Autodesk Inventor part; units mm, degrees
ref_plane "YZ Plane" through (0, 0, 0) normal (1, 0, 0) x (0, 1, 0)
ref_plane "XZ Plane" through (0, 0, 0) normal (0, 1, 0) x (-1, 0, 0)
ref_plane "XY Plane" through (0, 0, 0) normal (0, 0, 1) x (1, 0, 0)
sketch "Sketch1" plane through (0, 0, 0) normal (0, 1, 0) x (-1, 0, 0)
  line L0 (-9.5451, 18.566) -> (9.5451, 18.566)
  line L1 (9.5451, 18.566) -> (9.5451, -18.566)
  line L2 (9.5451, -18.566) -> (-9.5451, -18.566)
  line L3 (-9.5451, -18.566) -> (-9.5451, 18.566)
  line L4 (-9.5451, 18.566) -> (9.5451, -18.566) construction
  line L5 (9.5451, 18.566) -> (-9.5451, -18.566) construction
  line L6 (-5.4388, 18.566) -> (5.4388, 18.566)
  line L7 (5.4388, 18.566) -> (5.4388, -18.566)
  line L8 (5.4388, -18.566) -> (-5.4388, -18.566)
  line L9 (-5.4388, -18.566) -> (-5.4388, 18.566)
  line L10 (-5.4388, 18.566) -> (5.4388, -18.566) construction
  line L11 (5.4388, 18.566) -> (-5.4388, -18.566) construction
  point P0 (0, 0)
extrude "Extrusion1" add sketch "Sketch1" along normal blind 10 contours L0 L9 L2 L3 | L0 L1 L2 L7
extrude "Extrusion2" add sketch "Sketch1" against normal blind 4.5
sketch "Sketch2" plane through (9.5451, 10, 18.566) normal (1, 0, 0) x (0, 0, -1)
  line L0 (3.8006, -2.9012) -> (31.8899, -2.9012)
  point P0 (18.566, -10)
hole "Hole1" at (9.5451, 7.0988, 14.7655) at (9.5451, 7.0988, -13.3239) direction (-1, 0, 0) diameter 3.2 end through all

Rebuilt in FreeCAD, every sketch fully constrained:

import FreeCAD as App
import Part
import Sketcher


def add_polygon(sketch, points):
    """Adds a closed chain of lines whose ends are joined by coincident constraints."""
    first, n = sketch.GeometryCount, len(points)
    for a, b in zip(points, points[1:] + points[:1]):
        sketch.addGeometry(Part.LineSegment(App.Vector(*a, 0), App.Vector(*b, 0)), False)
    for i in range(n):
        sketch.addConstraint(Sketcher.Constraint("Coincident", first + i, 2, first + (i + 1) % n, 1))

doc = App.newDocument("Part")
body = doc.addObject("PartDesign::Body", "Body")
body.AllowCompound = True

# Sketch on XZ plane
sketch1 = body.newObject("Sketcher::SketchObject", "Sketch")
sketch1.AttachmentSupport = (doc.getObject("XZ_Plane"), [""])
sketch1.MapMode = "FlatFace"
add_polygon(sketch1, [(5.4388, 18.566), (9.5451, 18.566), (9.5451, -18.566), (5.4388, -18.566)])  # lines 0-3
add_polygon(sketch1, [(-9.5451, 18.566), (-5.4388, 18.566), (-5.4388, -18.566), (-9.5451, -18.566)])  # lines 4-7
sketch1.addConstraint([
    Sketcher.Constraint("Horizontal", 0),
    Sketcher.Constraint("Vertical", 1),
    Sketcher.Constraint("Horizontal", 2),
    Sketcher.Constraint("Vertical", 3),
    Sketcher.Constraint("Horizontal", 4),
    Sketcher.Constraint("Vertical", 5),
    Sketcher.Constraint("Horizontal", 6),
    Sketcher.Constraint("Vertical", 7),
    Sketcher.Constraint("Symmetric", 2, 2, 4, 2, -1, 1),
    Sketcher.Constraint("Symmetric", 0, 2, 6, 2, -1, 1),
    Sketcher.Constraint("Horizontal", 3, 2, 4, 2),
    Sketcher.Constraint("DistanceY", 1, 2, 1, 1, 37.132),
    Sketcher.Constraint("DistanceX", 0, 1, 0, 2, 4.1063),
    Sketcher.Constraint("DistanceX", -1, 1, 0, 2, 9.545),
])
pad1 = body.newObject("PartDesign::Pad", "Pad")
pad1.Profile = sketch1
pad1.Length = 10
pad1.Reversed = True

# Sketch on XZ plane
sketch2 = body.newObject("Sketcher::SketchObject", "Sketch001")
sketch2.AttachmentSupport = (doc.getObject("XZ_Plane"), [""])
sketch2.MapMode = "FlatFace"
add_polygon(sketch2, [(9.5451, 18.566), (9.5451, -18.566), (-9.5451, -18.566), (-9.5451, 18.566)])  # lines 0-3
sketch2.addConstraint([
    Sketcher.Constraint("Vertical", 0),
    Sketcher.Constraint("Horizontal", 1),
    Sketcher.Constraint("Vertical", 2),
    Sketcher.Constraint("Horizontal", 3),
    Sketcher.Constraint("Symmetric", 0, 2, 2, 2, -1, 1),
    Sketcher.Constraint("DistanceY", 0, 2, 0, 1, 37.132),
    Sketcher.Constraint("DistanceX", 1, 2, 1, 1, 19.0902),
])
pad2 = body.newObject("PartDesign::Pad", "Pad001")
pad2.Profile = sketch2
pad2.Length = 4.5

# Sketch on YZ plane
sketch3 = body.newObject("Sketcher::SketchObject", "Sketch002")
sketch3.AttachmentSupport = (doc.getObject("YZ_Plane"), [""])
sketch3.MapMode = "FlatFace"
sketch3.AttachmentOffset = App.Placement(App.Vector(0, 0, 9.5451), App.Rotation())
sketch3.addGeometry([
    Part.Circle(App.Vector(7.0988, 14.7655, 0), App.Vector(0, 0, 1), 1.6),
    Part.Circle(App.Vector(7.0988, -13.3239, 0), App.Vector(0, 0, 1), 1.6),
], False)
sketch3.addConstraint([
    Sketcher.Constraint("Equal", 0, 1),
    Sketcher.Constraint("Vertical", 0, 3, 1, 3),
    Sketcher.Constraint("Diameter", 0, 3.2),
    Sketcher.Constraint("DistanceY", 1, 3, -1, 1, 13.324),
    Sketcher.Constraint("DistanceX", -1, 1, 0, 3, 7.0988),
    Sketcher.Constraint("DistanceY", -1, 1, 0, 3, 14.7655),
])
doc.recompute()
hole = body.newObject("PartDesign::Hole", "Hole")
hole.Profile = sketch3
hole.ThreadType = "None"
hole.Diameter = 3.2
hole.DepthType = "ThroughAll"

doc.recompute()
